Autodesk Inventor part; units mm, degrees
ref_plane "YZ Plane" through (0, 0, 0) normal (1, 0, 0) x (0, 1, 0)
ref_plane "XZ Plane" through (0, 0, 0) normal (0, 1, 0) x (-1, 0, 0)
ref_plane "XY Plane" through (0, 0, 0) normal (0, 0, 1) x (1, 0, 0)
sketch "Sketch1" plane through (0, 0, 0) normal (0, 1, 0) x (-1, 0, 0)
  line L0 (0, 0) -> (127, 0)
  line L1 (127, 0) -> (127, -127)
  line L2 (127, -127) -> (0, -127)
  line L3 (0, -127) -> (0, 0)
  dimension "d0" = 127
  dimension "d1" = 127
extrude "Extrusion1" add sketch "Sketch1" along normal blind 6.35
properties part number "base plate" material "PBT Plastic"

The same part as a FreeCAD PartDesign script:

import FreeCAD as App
import Part
import Sketcher
Q = App.Units.Quantity


def add_polygon(sketch, points):
    """Adds a closed chain of lines whose ends are joined by coincident constraints."""
    first, n = sketch.GeometryCount, len(points)
    for a, b in zip(points, points[1:] + points[:1]):
        sketch.addGeometry(Part.LineSegment(App.Vector(*a, 0), App.Vector(*b, 0)), False)
    for i in range(n):
        sketch.addConstraint(Sketcher.Constraint("Coincident", first + i, 2, first + (i + 1) % n, 1))

doc = App.newDocument("Part")
body = doc.addObject("PartDesign::Body", "Body")

# Sketch on XZ plane
sketch1 = body.newObject("Sketcher::SketchObject", "Sketch")
sketch1.AttachmentSupport = (doc.getObject("XZ_Plane"), [""])
sketch1.MapMode = "FlatFace"
add_polygon(sketch1, [(-127, 0), (0, 0), (0, -127), (-127, -127)])  # lines 0-3
sketch1.addConstraint(Sketcher.Constraint("Horizontal", 0))
sketch1.addConstraint(Sketcher.Constraint("Vertical", 1))
sketch1.addConstraint(Sketcher.Constraint("Horizontal", 2))
sketch1.addConstraint(Sketcher.Constraint("Vertical", 3))
sketch1.addConstraint(Sketcher.Constraint("Coincident", 0, 2, -1, 1))
sketch1.addConstraint(Sketcher.Constraint("Equal", 2, 1))
sketch1.addConstraint(Sketcher.Constraint("DistanceX", 0, 1, 0, 2, Q("5 in")))
pad1 = body.newObject("PartDesign::Pad", "Pad")
pad1.Profile = sketch1
pad1.Length = Q("0.25 in")
pad1.Reversed = True

doc.recompute()
